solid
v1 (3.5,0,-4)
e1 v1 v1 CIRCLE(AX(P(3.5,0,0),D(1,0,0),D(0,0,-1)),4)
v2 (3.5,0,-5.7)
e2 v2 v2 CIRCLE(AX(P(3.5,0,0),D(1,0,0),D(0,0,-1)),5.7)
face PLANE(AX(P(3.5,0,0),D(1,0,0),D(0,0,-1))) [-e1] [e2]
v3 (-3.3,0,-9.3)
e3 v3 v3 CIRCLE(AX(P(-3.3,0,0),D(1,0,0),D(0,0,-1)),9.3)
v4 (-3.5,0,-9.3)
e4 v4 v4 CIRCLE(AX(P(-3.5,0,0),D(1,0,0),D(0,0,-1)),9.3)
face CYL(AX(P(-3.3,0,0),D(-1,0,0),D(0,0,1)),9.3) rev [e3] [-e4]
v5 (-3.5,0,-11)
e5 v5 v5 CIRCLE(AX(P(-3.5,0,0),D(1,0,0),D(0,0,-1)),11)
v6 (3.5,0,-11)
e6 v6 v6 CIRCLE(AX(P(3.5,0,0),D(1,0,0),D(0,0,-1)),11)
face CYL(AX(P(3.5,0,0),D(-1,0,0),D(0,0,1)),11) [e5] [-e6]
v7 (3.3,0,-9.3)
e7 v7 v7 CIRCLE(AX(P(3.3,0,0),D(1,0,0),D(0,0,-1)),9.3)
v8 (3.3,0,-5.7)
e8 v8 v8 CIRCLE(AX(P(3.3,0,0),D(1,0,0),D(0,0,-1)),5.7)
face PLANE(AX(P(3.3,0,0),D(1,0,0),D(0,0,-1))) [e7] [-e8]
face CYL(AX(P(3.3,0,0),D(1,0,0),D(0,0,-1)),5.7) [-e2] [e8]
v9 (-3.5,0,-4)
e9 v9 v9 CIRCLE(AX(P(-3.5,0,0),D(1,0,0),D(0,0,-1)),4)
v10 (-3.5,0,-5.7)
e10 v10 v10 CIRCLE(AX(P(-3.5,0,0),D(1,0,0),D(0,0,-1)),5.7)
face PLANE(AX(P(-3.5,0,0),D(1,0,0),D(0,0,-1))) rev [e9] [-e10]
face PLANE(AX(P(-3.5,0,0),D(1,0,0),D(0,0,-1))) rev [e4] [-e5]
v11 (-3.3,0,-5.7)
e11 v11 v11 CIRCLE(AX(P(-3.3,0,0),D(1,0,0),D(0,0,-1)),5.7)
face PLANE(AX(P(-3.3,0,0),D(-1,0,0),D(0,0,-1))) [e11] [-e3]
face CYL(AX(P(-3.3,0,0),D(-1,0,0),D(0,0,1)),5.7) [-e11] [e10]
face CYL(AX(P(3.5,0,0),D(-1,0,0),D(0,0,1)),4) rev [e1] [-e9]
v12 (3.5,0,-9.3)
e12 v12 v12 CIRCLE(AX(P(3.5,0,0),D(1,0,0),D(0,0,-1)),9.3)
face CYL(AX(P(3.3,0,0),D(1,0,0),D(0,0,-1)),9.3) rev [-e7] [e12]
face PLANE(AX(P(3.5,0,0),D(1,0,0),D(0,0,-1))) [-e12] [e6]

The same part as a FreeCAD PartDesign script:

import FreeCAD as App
import Part
import Sketcher
from FreeCAD import Vector

doc = App.newDocument("Part")
body = doc.addObject("PartDesign::Body", "Body")

# Sketch on YZ plane
sketch1 = doc.addObject("Sketcher::SketchObject", "Sketch")
body.addObject(sketch1)
sketch1.AttachmentSupport = (doc.YZ_Plane, [""])
sketch1.MapMode = "FlatFace"
sketch1.addGeometry([
    Part.Circle(Vector(0, 0, 0), Vector(0, 0, 1), 11),
    Part.Circle(Vector(0, 0, 0), Vector(0, 0, 1), 4),
], False)
sketch1.addConstraint([
    Sketcher.Constraint("Coincident", 0, 3, -1, 1),
    Sketcher.Constraint("Coincident", 1, 3, -1, 1),
    Sketcher.Constraint("Diameter", 0, 22.0),
    Sketcher.Constraint("Diameter", 1, 8.0),
])
pad1 = doc.addObject("PartDesign::Pad", "Pad")
body.addObject(pad1)
pad1.Profile = sketch1
pad1.Length = 7
pad1.Midplane = True

# Sketch on YZ plane
sketch2 = doc.addObject("Sketcher::SketchObject", "Sketch001")
body.addObject(sketch2)
sketch2.AttachmentSupport = (doc.YZ_Plane, [""])
sketch2.MapMode = "FlatFace"
sketch2.AttachmentOffset = App.Placement(Vector(0, 0, 3.5), App.Rotation())
sketch2.addGeometry([
    Part.Circle(Vector(0, 0, 0), Vector(0, 0, 1), 9.3),
    Part.Circle(Vector(0, 0, 0), Vector(0, 0, 1), 5.7),
], False)
sketch2.addConstraint([
    Sketcher.Constraint("Coincident", 0, 3, -1, 1),
    Sketcher.Constraint("Coincident", 1, 3, -1, 1),
    Sketcher.Constraint("Diameter", 0, 18.6),
    Sketcher.Constraint("Diameter", 1, 11.4),
])
pocket1 = doc.addObject("PartDesign::Pocket", "Pocket")
body.addObject(pocket1)
pocket1.Profile = sketch2
pocket1.Length = 0.2
doc.recompute()

mirrored = doc.addObject("PartDesign::Mirrored", "Mirrored")
body.addObject(mirrored)
mirrored.Originals = [pocket1]
mirrored.MirrorPlane = (doc.YZ_Plane, [""])
body.Tip = mirrored

doc.recompute()
